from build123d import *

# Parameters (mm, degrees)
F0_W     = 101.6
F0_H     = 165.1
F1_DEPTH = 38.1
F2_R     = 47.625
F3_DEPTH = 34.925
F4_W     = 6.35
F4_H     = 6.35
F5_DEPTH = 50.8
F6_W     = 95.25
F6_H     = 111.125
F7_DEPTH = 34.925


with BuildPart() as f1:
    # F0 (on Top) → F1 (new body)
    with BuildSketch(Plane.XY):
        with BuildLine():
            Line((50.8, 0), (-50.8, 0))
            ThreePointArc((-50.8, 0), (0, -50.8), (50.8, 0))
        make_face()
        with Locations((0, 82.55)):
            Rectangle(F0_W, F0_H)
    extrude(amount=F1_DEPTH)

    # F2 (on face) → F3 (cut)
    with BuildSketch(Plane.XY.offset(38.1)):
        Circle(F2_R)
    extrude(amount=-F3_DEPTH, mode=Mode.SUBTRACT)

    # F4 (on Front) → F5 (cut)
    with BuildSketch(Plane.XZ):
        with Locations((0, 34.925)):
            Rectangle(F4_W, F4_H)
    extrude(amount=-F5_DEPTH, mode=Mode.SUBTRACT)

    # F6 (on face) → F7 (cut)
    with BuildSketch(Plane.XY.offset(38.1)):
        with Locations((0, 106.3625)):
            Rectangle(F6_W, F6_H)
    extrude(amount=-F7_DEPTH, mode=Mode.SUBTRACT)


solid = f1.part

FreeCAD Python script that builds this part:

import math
import FreeCAD as App
import Part
import Sketcher
Q = App.Units.Quantity


def add_polygon(sketch, points):
    """Adds a closed chain of lines whose ends are joined by coincident constraints."""
    first, n = sketch.GeometryCount, len(points)
    for a, b in zip(points, points[1:] + points[:1]):
        sketch.addGeometry(Part.LineSegment(App.Vector(*a, 0), App.Vector(*b, 0)), False)
    for i in range(n):
        sketch.addConstraint(Sketcher.Constraint("Coincident", first + i, 2, first + (i + 1) % n, 1))

doc = App.newDocument("Part")
body = doc.addObject("PartDesign::Body", "Body")

# Sketch on XY plane
sketch1 = doc.addObject("Sketcher::SketchObject", "Sketch")
body.addObject(sketch1)
sketch1.AttachmentSupport = (doc.XY_Plane, [""])
sketch1.MapMode = "FlatFace"
sketch1.addGeometry(Part.ArcOfCircle(Part.Circle(App.Vector(0, 0, 0), App.Vector(0, 0, 1), 50.8), math.radians(180), math.radians(360)), False)
sketch1.addGeometry(Part.LineSegment(App.Vector(50.8, 0, 0), App.Vector(50.8, 165.1, 0)), False)
sketch1.addGeometry(Part.LineSegment(App.Vector(50.8, 165.1, 0), App.Vector(-50.8, 165.1, 0)), False)
sketch1.addGeometry(Part.LineSegment(App.Vector(-50.8, 165.1, 0), App.Vector(-50.8, 0, 0)), False)
sketch1.addConstraint(Sketcher.Constraint("Tangent", 0, 2, 1, 1))
sketch1.addConstraint(Sketcher.Constraint("Coincident", 1, 2, 2, 1))
sketch1.addConstraint(Sketcher.Constraint("Coincident", 2, 2, 3, 1))
sketch1.addConstraint(Sketcher.Constraint("Tangent", 3, 2, 0, 1))
sketch1.addConstraint(Sketcher.Constraint("Vertical", 1))
sketch1.addConstraint(Sketcher.Constraint("Horizontal", 2))
sketch1.addConstraint(Sketcher.Constraint("Vertical", 3))
sketch1.addConstraint(Sketcher.Constraint("Coincident", 0, 3, -1, 1))
sketch1.addConstraint(Sketcher.Constraint("Radius", 0, Q("2 in")))
sketch1.addConstraint(Sketcher.Constraint("DistanceY", 1, 1, 1, 2, Q("6.5 in")))
pad1 = doc.addObject("PartDesign::Pad", "Pad")
body.addObject(pad1)
pad1.Profile = sketch1
pad1.Length = Q("1.5 in")

# Sketch on XY plane
sketch2 = doc.addObject("Sketcher::SketchObject", "Sketch001")
body.addObject(sketch2)
sketch2.AttachmentSupport = (doc.XY_Plane, [""])
sketch2.MapMode = "FlatFace"
sketch2.AttachmentOffset = App.Placement(App.Vector(0, 0, 1.5 * 25.4), App.Rotation())
sketch2.addGeometry(Part.Circle(App.Vector(0, 0, 0), App.Vector(0, 0, 1), 47.625), False)
sketch2.addConstraint(Sketcher.Constraint("Coincident", 0, 3, -1, 1))
sketch2.addConstraint(Sketcher.Constraint("Diameter", 0, Q("3.75 in")))
pocket1 = doc.addObject("PartDesign::Pocket", "Pocket")
body.addObject(pocket1)
pocket1.Profile = sketch2
pocket1.Length = Q("1.375 in")

# Sketch on XZ plane
sketch3 = doc.addObject("Sketcher::SketchObject", "Sketch002")
body.addObject(sketch3)
sketch3.AttachmentSupport = (doc.XZ_Plane, [""])
sketch3.MapMode = "FlatFace"
add_polygon(sketch3, [(-3.175, 38.1), (-3.175, 31.75), (3.175, 31.75), (3.175, 38.1)])  # lines 0-3
sketch3.addConstraint(Sketcher.Constraint("Vertical", 0))
sketch3.addConstraint(Sketcher.Constraint("Horizontal", 1))
sketch3.addConstraint(Sketcher.Constraint("Vertical", 2))
sketch3.addConstraint(Sketcher.Constraint("Horizontal", 3))
sketch3.addConstraint(Sketcher.Constraint("Equal", 3, 0))
sketch3.addConstraint(Sketcher.Constraint("DistanceX", 1, 1, 1, 2, Q("0.25 in")))
sketch3.addConstraint(Sketcher.Constraint("DistanceY", -1, 1, 2, 2, Q("1.5 in")))
sketch3.addConstraint(Sketcher.Constraint("DistanceX", 0, 2, -1, 1, Q("0.125 in")))
pocket2 = doc.addObject("PartDesign::Pocket", "Pocket001")
body.addObject(pocket2)
pocket2.Profile = sketch3
pocket2.Length = Q("2 in")

# Sketch on XY plane
sketch4 = doc.addObject("Sketcher::SketchObject", "Sketch003")
body.addObject(sketch4)
sketch4.AttachmentSupport = (doc.XY_Plane, [""])
sketch4.MapMode = "FlatFace"
sketch4.AttachmentOffset = App.Placement(App.Vector(0, 0, 1.5 * 25.4), App.Rotation())
add_polygon(sketch4, [(-47.625, 161.925), (-47.625, 50.8), (47.625, 50.8), (47.625, 161.925)])  # lines 0-3
sketch4.addConstraint(Sketcher.Constraint("Vertical", 0))
sketch4.addConstraint(Sketcher.Constraint("Horizontal", 1))
sketch4.addConstraint(Sketcher.Constraint("Vertical", 2))
sketch4.addConstraint(Sketcher.Constraint("Horizontal", 3))
sketch4.addConstraint(Sketcher.Constraint("DistanceY", -1, 1, 0, 2, Q("2 in")))
sketch4.addConstraint(Sketcher.Constraint("DistanceX", 1, 1, 1, 2, Q("3.75 in")))
sketch4.addConstraint(Sketcher.Constraint("DistanceY", 0, 2, 0, 1, Q("4.375 in")))
sketch4.addConstraint(Sketcher.Constraint("DistanceX", 0, 2, -1, 1, Q("1.875 in")))
pocket3 = doc.addObject("PartDesign::Pocket", "Pocket002")
body.addObject(pocket3)
pocket3.Profile = sketch4
pocket3.Length = Q("1.375 in")

doc.recompute()
